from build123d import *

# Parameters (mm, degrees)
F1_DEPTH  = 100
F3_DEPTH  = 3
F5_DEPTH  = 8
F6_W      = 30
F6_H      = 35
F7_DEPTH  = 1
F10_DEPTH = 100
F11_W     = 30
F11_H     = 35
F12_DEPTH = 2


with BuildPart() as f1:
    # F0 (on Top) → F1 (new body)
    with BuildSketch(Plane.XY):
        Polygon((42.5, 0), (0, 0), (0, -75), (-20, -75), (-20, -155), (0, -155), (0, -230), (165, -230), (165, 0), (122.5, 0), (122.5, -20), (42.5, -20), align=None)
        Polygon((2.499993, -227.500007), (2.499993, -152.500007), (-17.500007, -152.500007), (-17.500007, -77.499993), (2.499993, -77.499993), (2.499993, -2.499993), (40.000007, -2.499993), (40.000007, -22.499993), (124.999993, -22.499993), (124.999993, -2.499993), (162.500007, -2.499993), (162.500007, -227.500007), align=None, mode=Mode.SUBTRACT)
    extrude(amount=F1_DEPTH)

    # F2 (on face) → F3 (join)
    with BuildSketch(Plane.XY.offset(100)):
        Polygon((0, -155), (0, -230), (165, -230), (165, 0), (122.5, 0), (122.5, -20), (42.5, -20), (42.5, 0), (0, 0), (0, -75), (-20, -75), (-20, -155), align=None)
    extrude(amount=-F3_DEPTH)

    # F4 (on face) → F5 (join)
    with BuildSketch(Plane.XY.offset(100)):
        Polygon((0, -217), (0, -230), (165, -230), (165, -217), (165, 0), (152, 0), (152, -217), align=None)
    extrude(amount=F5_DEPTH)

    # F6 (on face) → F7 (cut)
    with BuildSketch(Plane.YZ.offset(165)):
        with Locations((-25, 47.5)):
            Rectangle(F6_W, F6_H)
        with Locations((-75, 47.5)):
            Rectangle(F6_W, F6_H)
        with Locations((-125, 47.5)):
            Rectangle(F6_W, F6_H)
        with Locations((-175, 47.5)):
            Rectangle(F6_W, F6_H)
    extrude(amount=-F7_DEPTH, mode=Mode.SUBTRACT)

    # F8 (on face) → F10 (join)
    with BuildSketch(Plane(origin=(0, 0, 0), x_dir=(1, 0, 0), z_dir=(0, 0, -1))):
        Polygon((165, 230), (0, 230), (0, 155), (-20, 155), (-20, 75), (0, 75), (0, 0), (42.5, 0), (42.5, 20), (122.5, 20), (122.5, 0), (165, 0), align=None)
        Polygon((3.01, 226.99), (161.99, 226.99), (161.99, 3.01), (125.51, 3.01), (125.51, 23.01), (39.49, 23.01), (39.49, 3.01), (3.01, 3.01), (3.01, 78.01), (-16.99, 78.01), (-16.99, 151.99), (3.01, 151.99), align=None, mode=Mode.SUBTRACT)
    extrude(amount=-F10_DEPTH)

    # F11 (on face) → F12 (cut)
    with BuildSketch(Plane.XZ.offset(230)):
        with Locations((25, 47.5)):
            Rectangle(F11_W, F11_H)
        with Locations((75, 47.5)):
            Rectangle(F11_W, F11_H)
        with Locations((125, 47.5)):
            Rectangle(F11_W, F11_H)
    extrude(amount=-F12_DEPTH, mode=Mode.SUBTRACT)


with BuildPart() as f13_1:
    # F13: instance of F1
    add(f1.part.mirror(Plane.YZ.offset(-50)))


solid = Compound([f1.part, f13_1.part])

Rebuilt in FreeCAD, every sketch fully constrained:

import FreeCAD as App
import Part
import Sketcher
from FreeCAD import Vector
Q = App.Units.Quantity


def add_polygon(sketch, points):
    """Adds a closed chain of lines whose ends are joined by coincident constraints."""
    first, n = sketch.GeometryCount, len(points)
    for a, b in zip(points, points[1:] + points[:1]):
        sketch.addGeometry(Part.LineSegment(App.Vector(*a, 0), App.Vector(*b, 0)), False)
    for i in range(n):
        sketch.addConstraint(Sketcher.Constraint("Coincident", first + i, 2, first + (i + 1) % n, 1))

doc = App.newDocument("Part")
params = doc.addObject("Spreadsheet::Sheet", "Params")
for row, (alias, value) in enumerate([
    ("sketch1_width", "20 mm"),
    ("sketch1_width2", "165 mm"),
    ("sketch1_width3", "80 mm"),
    ("sketch1_height", "75 mm"),
    ("pad1_length", "100 mm"),
    ("sketch2_width", "165 mm"),
    ("sketch2_width2", "80 mm"),
    ("sketch2_width3", "20 mm"),
    ("sketch2_height", "75 mm"),
    ("pad2_length", "3 mm"),
    ("sketch3_width", "165 mm"),
    ("sketch3_width2", "13 mm"),
    ("sketch3_height", "230 mm"),
    ("pad3_length", "8 mm"),
    ("sketch4_width", "30 mm"),
    ("sketch4_height", "35 mm"),
    ("pocket1_length", "1 mm"),
    ("sketch5_width", "165 mm"),
    ("sketch5_width2", "20 mm"),
    ("sketch5_width3", "80 mm"),
    ("sketch5_height", "75 mm"),
    ("sketch5_width4", "158.98 mm"),
    ("pad4_length", "100 mm"),
    ("sketch6_width", "30 mm"),
    ("sketch6_height", "35 mm"),
    ("pocket2_length", "2 mm"),
], start=1):
    params.set(f"A{row}", alias)
    params.set(f"B{row}", "=" + value)
    params.setAlias(f"B{row}", alias)

body = doc.addObject("PartDesign::Body", "Body")

sketch1 = body.newObject("Sketcher::SketchObject", "Sketch")
sketch1.AttachmentSupport = (doc.getObject("XY_Plane"), [""])
sketch1.MapMode = "FlatFace"
add_polygon(sketch1, [(42, 0), (0, 0), (0, -75), (-20, -75), (-20, -155), (0, -155), (0, -230), (165, -230), (165, 0), (122, 0), (122, -20), (42, -20)])
add_polygon(sketch1, [(163, -228), (2, -228), (2, -153), (-18, -153), (-18, -77), (2, -77), (2, -2), (40, -2), (40, -22), (125, -22), (125, -2), (163, -2)])
sketch1.addConstraint(Sketcher.Constraint("Horizontal", 0))
sketch1.addConstraint(Sketcher.Constraint("Vertical", 1))
sketch1.addConstraint(Sketcher.Constraint("Horizontal", 2))
sketch1.addConstraint(Sketcher.Constraint("Vertical", 3))
sketch1.addConstraint(Sketcher.Constraint("Horizontal", 4))
sketch1.addConstraint(Sketcher.Constraint("Vertical", 5))
sketch1.addConstraint(Sketcher.Constraint("Horizontal", 6))
sketch1.addConstraint(Sketcher.Constraint("Vertical", 7))
sketch1.addConstraint(Sketcher.Constraint("Horizontal", 8))
sketch1.addConstraint(Sketcher.Constraint("Vertical", 9))
sketch1.addConstraint(Sketcher.Constraint("Horizontal", 10))
sketch1.addConstraint(Sketcher.Constraint("Vertical", 11))
sketch1.addConstraint(Sketcher.Constraint("Horizontal", 12))
sketch1.addConstraint(Sketcher.Constraint("Vertical", 13))
sketch1.addConstraint(Sketcher.Constraint("Horizontal", 14))
sketch1.addConstraint(Sketcher.Constraint("Vertical", 15))
sketch1.addConstraint(Sketcher.Constraint("Horizontal", 16))
sketch1.addConstraint(Sketcher.Constraint("Vertical", 17))
sketch1.addConstraint(Sketcher.Constraint("Horizontal", 18))
sketch1.addConstraint(Sketcher.Constraint("Vertical", 19))
sketch1.addConstraint(Sketcher.Constraint("Horizontal", 20))
sketch1.addConstraint(Sketcher.Constraint("Vertical", 21))
sketch1.addConstraint(Sketcher.Constraint("Horizontal", 22))
sketch1.addConstraint(Sketcher.Constraint("Vertical", 23))
sketch1.addConstraint(Sketcher.Constraint("Coincident", 0, 2, -1, 1))
sketch1.addConstraint(Sketcher.Constraint("PointOnObject", 4, 2, -2))
sketch1.addConstraint(Sketcher.Constraint("PointOnObject", 7, 2, -1))
sketch1.addConstraint(Sketcher.Constraint("Horizontal", 18, 2, 21, 2))
sketch1.addConstraint(Sketcher.Constraint("Vertical", 13, 2, 16, 2))
sketch1.addConstraint(Sketcher.Constraint("Equal", 0, 8))
sketch1.addConstraint(Sketcher.Constraint("Equal", 4, 14))
sketch1.addConstraint(Sketcher.Constraint("Equal", 18, 22))
sketch1.addConstraint(Sketcher.Constraint("Equal", 10, 3))
sketch1.addConstraint(Sketcher.Constraint("Equal", 1, 5))
sketch1.addConstraint(Sketcher.Constraint("Equal", 16, 9))
sketch1.addConstraint(Sketcher.Constraint("Equal", 5, 13))
sketch1.addConstraint(Sketcher.Constraint("Equal", 13, 17))
sketch1.addConstraint(Sketcher.Constraint("Equal", 11, 19))
sketch1.addConstraint(Sketcher.Constraint("DistanceX", 2, 2, 2, 1, Q("20 mm")))
sketch1.addConstraint(Sketcher.Constraint("DistanceX", 6, 1, 6, 2, Q("165 mm")))
sketch1.addConstraint(Sketcher.Constraint("DistanceX", 10, 2, 10, 1, Q("80 mm")))
sketch1.addConstraint(Sketcher.Constraint("DistanceY", 1, 2, 1, 1, Q("75 mm")))
sketch1.addConstraint(Sketcher.Constraint("DistanceX", 12, 2, 12, 1, Q("160.000014 mm")))
sketch1.addConstraint(Sketcher.Constraint("DistanceX", 18, 1, 18, 2, Q("37.500014 mm")))
sketch1.addConstraint(Sketcher.Constraint("DistanceY", 15, 1, 15, 2, Q("75.000014 mm")))
sketch1.addConstraint(Sketcher.Constraint("DistanceX", -1, 1, 12, 2, Q("2.499993 mm")))
sketch1.addConstraint(Sketcher.Constraint("DistanceY", 12, 2, -1, 1, Q("227.500007 mm")))
sketch1.setExpression("Constraints[62]", "Params.sketch1_width")
sketch1.setExpression("Constraints[63]", "Params.sketch1_width2")
sketch1.setExpression("Constraints[64]", "Params.sketch1_width3")
sketch1.setExpression("Constraints[65]", "Params.sketch1_height")
pad1 = body.newObject("PartDesign::Pad", "Pad")
pad1.Profile = sketch1
pad1.setExpression("Length", "Params.pad1_length")

sketch2 = body.newObject("Sketcher::SketchObject", "Sketch001")
sketch2.AttachmentSupport = (doc.getObject("XY_Plane"), [""])
sketch2.MapMode = "FlatFace"
sketch2.AttachmentOffset = App.Placement(Vector(0, 0, 100), App.Rotation())
add_polygon(sketch2, [(0, -155), (0, -230), (165, -230), (165, 0), (122, 0), (122, -20), (42, -20), (42, 0), (0, 0), (0, -75), (-20, -75), (-20, -155)])
sketch2.addConstraint(Sketcher.Constraint("Vertical", 0))
sketch2.addConstraint(Sketcher.Constraint("Horizontal", 1))
sketch2.addConstraint(Sketcher.Constraint("Vertical", 2))
sketch2.addConstraint(Sketcher.Constraint("Horizontal", 3))
sketch2.addConstraint(Sketcher.Constraint("Vertical", 4))
sketch2.addConstraint(Sketcher.Constraint("Horizontal", 5))
sketch2.addConstraint(Sketcher.Constraint("Vertical", 6))
sketch2.addConstraint(Sketcher.Constraint("Horizontal", 7))
sketch2.addConstraint(Sketcher.Constraint("Vertical", 8))
sketch2.addConstraint(Sketcher.Constraint("Horizontal", 9))
sketch2.addConstraint(Sketcher.Constraint("Vertical", 10))
sketch2.addConstraint(Sketcher.Constraint("Horizontal", 11))
sketch2.addConstraint(Sketcher.Constraint("Coincident", 7, 2, -1, 1))
sketch2.addConstraint(Sketcher.Constraint("PointOnObject", 0, 2, -2))
sketch2.addConstraint(Sketcher.Constraint("PointOnObject", 2, 2, -1))
sketch2.addConstraint(Sketcher.Constraint("Equal", 3, 7))
sketch2.addConstraint(Sketcher.Constraint("Equal", 11, 4))
sketch2.addConstraint(Sketcher.Constraint("Equal", 0, 8))
sketch2.addConstraint(Sketcher.Constraint("Equal", 5, 10))
sketch2.addConstraint(Sketcher.Constraint("DistanceX", 1, 1, 1, 2, Q("165 mm")))
sketch2.addConstraint(Sketcher.Constraint("DistanceX", 5, 2, 5, 1, Q("80 mm")))
sketch2.addConstraint(Sketcher.Constraint("DistanceX", 9, 2, 9, 1, Q("20 mm")))
sketch2.addConstraint(Sketcher.Constraint("DistanceY", 0, 2, 0, 1, Q("75 mm")))
sketch2.setExpression("Constraints[31]", "Params.sketch2_width")
sketch2.setExpression("Constraints[32]", "Params.sketch2_width2")
sketch2.setExpression("Constraints[33]", "Params.sketch2_width3")
sketch2.setExpression("Constraints[34]", "Params.sketch2_height")
pad2 = body.newObject("PartDesign::Pad", "Pad001")
pad2.Profile = sketch2
pad2.setExpression("Length", "Params.pad2_length")
pad2.Reversed = True

sketch3 = body.newObject("Sketcher::SketchObject", "Sketch002")
sketch3.AttachmentSupport = (doc.getObject("XY_Plane"), [""])
sketch3.MapMode = "FlatFace"
sketch3.AttachmentOffset = App.Placement(Vector(0, 0, 100), App.Rotation())
add_polygon(sketch3, [(0, -217), (0, -230), (165, -230), (165, 0), (152, 0), (152, -217)])
sketch3.addConstraint(Sketcher.Constraint("Vertical", 0))
sketch3.addConstraint(Sketcher.Constraint("Horizontal", 1))
sketch3.addConstraint(Sketcher.Constraint("Vertical", 2))
sketch3.addConstraint(Sketcher.Constraint("Horizontal", 3))
sketch3.addConstraint(Sketcher.Constraint("Vertical", 4))
sketch3.addConstraint(Sketcher.Constraint("Horizontal", 5))
sketch3.addConstraint(Sketcher.Constraint("PointOnObject", 0, 2, -2))
sketch3.addConstraint(Sketcher.Constraint("PointOnObject", 2, 2, -1))
sketch3.addConstraint(Sketcher.Constraint("Equal", 3, 0))
sketch3.addConstraint(Sketcher.Constraint("DistanceX", 1, 1, 1, 2, Q("165 mm")))
sketch3.addConstraint(Sketcher.Constraint("DistanceX", 3, 2, 3, 1, Q("13 mm")))
sketch3.addConstraint(Sketcher.Constraint("DistanceY", 2, 1, 2, 2, Q("230 mm")))
sketch3.setExpression("Constraints[15]", "Params.sketch3_width")
sketch3.setExpression("Constraints[16]", "Params.sketch3_width2")
sketch3.setExpression("Constraints[17]", "Params.sketch3_height")
pad3 = body.newObject("PartDesign::Pad", "Pad002")
pad3.Profile = sketch3
pad3.setExpression("Length", "Params.pad3_length")

sketch4 = body.newObject("Sketcher::SketchObject", "Sketch003")
sketch4.AttachmentSupport = (doc.getObject("YZ_Plane"), [""])
sketch4.MapMode = "FlatFace"
sketch4.AttachmentOffset = App.Placement(Vector(0, 0, 165), App.Rotation())
add_polygon(sketch4, [(-40, 65), (-40, 30), (-10, 30), (-10, 65)])
add_polygon(sketch4, [(-90, 65), (-90, 30), (-60, 30), (-60, 65)])
add_polygon(sketch4, [(-140, 65), (-140, 30), (-110, 30), (-110, 65)])
add_polygon(sketch4, [(-190, 65), (-190, 30), (-160, 30), (-160, 65)])
sketch4.addConstraint(Sketcher.Constraint("Vertical", 0))
sketch4.addConstraint(Sketcher.Constraint("Horizontal", 1))
sketch4.addConstraint(Sketcher.Constraint("Vertical", 2))
sketch4.addConstraint(Sketcher.Constraint("Horizontal", 3))
sketch4.addConstraint(Sketcher.Constraint("Vertical", 4))
sketch4.addConstraint(Sketcher.Constraint("Horizontal", 5))
sketch4.addConstraint(Sketcher.Constraint("Vertical", 6))
sketch4.addConstraint(Sketcher.Constraint("Horizontal", 7))
sketch4.addConstraint(Sketcher.Constraint("Vertical", 8))
sketch4.addConstraint(Sketcher.Constraint("Horizontal", 9))
sketch4.addConstraint(Sketcher.Constraint("Vertical", 10))
sketch4.addConstraint(Sketcher.Constraint("Horizontal", 11))
sketch4.addConstraint(Sketcher.Constraint("Vertical", 12))
sketch4.addConstraint(Sketcher.Constraint("Horizontal", 13))
sketch4.addConstraint(Sketcher.Constraint("Vertical", 14))
sketch4.addConstraint(Sketcher.Constraint("Horizontal", 15))
sketch4.addConstraint(Sketcher.Constraint("Horizontal", 1, 2, 4, 2))
sketch4.addConstraint(Sketcher.Constraint("Horizontal", 3, 2, 6, 2))
sketch4.addConstraint(Sketcher.Constraint("Horizontal", 5, 2, 8, 2))
sketch4.addConstraint(Sketcher.Constraint("Horizontal", 7, 2, 10, 2))
sketch4.addConstraint(Sketcher.Constraint("Horizontal", 9, 2, 12, 2))
sketch4.addConstraint(Sketcher.Constraint("Horizontal", 11, 2, 14, 2))
sketch4.addConstraint(Sketcher.Constraint("Equal", 3, 5))
sketch4.addConstraint(Sketcher.Constraint("Equal", 7, 9))
sketch4.addConstraint(Sketcher.Constraint("Equal", 11, 13))
sketch4.addConstraint(Sketcher.Constraint("DistanceX", 1, 1, 1, 2, Q("30 mm")))
sketch4.addConstraint(Sketcher.Constraint("DistanceY", 0, 2, 0, 1, Q("35 mm")))
sketch4.addConstraint(Sketcher.Constraint("DistanceX", 0, 2, -1, 1, Q("40 mm")))
sketch4.addConstraint(Sketcher.Constraint("DistanceY", -1, 1, 0, 2, Q("30 mm")))
sketch4.addConstraint(Sketcher.Constraint("DistanceX", 4, 2, -1, 1, Q("90 mm")))
sketch4.addConstraint(Sketcher.Constraint("DistanceX", 8, 2, -1, 1, Q("140 mm")))
sketch4.addConstraint(Sketcher.Constraint("DistanceX", 12, 2, -1, 1, Q("190 mm")))
sketch4.setExpression("Constraints[41]", "Params.sketch4_width")
sketch4.setExpression("Constraints[42]", "Params.sketch4_height")
pocket1 = body.newObject("PartDesign::Pocket", "Pocket")
pocket1.Profile = sketch4
pocket1.setExpression("Length", "Params.pocket1_length")

sketch5 = body.newObject("Sketcher::SketchObject", "Sketch004")
sketch5.AttachmentSupport = (doc.getObject("XY_Plane"), [""])
sketch5.MapMode = "FlatFace"
add_polygon(sketch5, [(165, -230), (0, -230), (0, -155), (-20, -155), (-20, -75), (0, -75), (0, 0), (42, 0), (42, -20), (122, -20), (122, 0), (165, 0)])
add_polygon(sketch5, [(3, -152), (3, -227), (162, -227), (162, -3), (126, -3), (126, -23), (39, -23), (39, -3), (3, -3), (3, -78), (-17, -78), (-17, -152)])
sketch5.addConstraint(Sketcher.Constraint("Horizontal", 0))
sketch5.addConstraint(Sketcher.Constraint("Vertical", 1))
sketch5.addConstraint(Sketcher.Constraint("Horizontal", 2))
sketch5.addConstraint(Sketcher.Constraint("Vertical", 3))
sketch5.addConstraint(Sketcher.Constraint("Horizontal", 4))
sketch5.addConstraint(Sketcher.Constraint("Vertical", 5))
sketch5.addConstraint(Sketcher.Constraint("Horizontal", 6))
sketch5.addConstraint(Sketcher.Constraint("Vertical", 7))
sketch5.addConstraint(Sketcher.Constraint("Horizontal", 8))
sketch5.addConstraint(Sketcher.Constraint("Vertical", 9))
sketch5.addConstraint(Sketcher.Constraint("Horizontal", 10))
sketch5.addConstraint(Sketcher.Constraint("Vertical", 11))
sketch5.addConstraint(Sketcher.Constraint("Vertical", 12))
sketch5.addConstraint(Sketcher.Constraint("Horizontal", 13))
sketch5.addConstraint(Sketcher.Constraint("Vertical", 14))
sketch5.addConstraint(Sketcher.Constraint("Horizontal", 15))
sketch5.addConstraint(Sketcher.Constraint("Vertical", 16))
sketch5.addConstraint(Sketcher.Constraint("Horizontal", 17))
sketch5.addConstraint(Sketcher.Constraint("Vertical", 18))
sketch5.addConstraint(Sketcher.Constraint("Horizontal", 19))
sketch5.addConstraint(Sketcher.Constraint("Vertical", 20))
sketch5.addConstraint(Sketcher.Constraint("Horizontal", 21))
sketch5.addConstraint(Sketcher.Constraint("Vertical", 22))
sketch5.addConstraint(Sketcher.Constraint("Horizontal", 23))
sketch5.addConstraint(Sketcher.Constraint("Coincident", 5, 2, -1, 1))
sketch5.addConstraint(Sketcher.Constraint("PointOnObject", 0, 2, -2))
sketch5.addConstraint(Sketcher.Constraint("PointOnObject", 9, 2, -1))
sketch5.addConstraint(Sketcher.Constraint("Horizontal", 15, 2, 18, 2))
sketch5.addConstraint(Sketcher.Constraint("Vertical", 12, 2, 19, 2))
sketch5.addConstraint(Sketcher.Constraint("Equal", 6, 10))
sketch5.addConstraint(Sketcher.Constraint("Equal", 15, 19))
sketch5.addConstraint(Sketcher.Constraint("Equal", 4, 21))
sketch5.addConstraint(Sketcher.Constraint("Equal", 8, 3))
sketch5.addConstraint(Sketcher.Constraint("Equal", 1, 5))
sketch5.addConstraint(Sketcher.Constraint("Equal", 23, 7))
sketch5.addConstraint(Sketcher.Constraint("Equal", 5, 12))
sketch5.addConstraint(Sketcher.Constraint("Equal", 9, 16))
sketch5.addConstraint(Sketcher.Constraint("Equal", 12, 20))
sketch5.addConstraint(Sketcher.Constraint("DistanceX", 0, 2, 0, 1, Q("165 mm")))
sketch5.addConstraint(Sketcher.Constraint("DistanceX", 2, 2, 2, 1, Q("20 mm")))
sketch5.addConstraint(Sketcher.Constraint("DistanceX", 8, 1, 8, 2, Q("80 mm")))
sketch5.addConstraint(Sketcher.Constraint("DistanceY", 1, 1, 1, 2, Q("75 mm")))
sketch5.addConstraint(Sketcher.Constraint("DistanceX", 13, 1, 13, 2, Q("158.98 mm")))
sketch5.addConstraint(Sketcher.Constraint("DistanceX", 15, 2, 15, 1, Q("36.48 mm")))
sketch5.addConstraint(Sketcher.Constraint("DistanceY", 14, 1, 14, 2, Q("223.98 mm")))
sketch5.addConstraint(Sketcher.Constraint("DistanceX", -1, 1, 12, 2, Q("3.01 mm")))
sketch5.addConstraint(Sketcher.Constraint("DistanceY", 12, 2, -1, 1, Q("226.99 mm")))
sketch5.setExpression("Constraints[62]", "Params.sketch5_width")
sketch5.setExpression("Constraints[63]", "Params.sketch5_width2")
sketch5.setExpression("Constraints[64]", "Params.sketch5_width3")
sketch5.setExpression("Constraints[65]", "Params.sketch5_height")
sketch5.setExpression("Constraints[66]", "Params.sketch5_width4")
pad4 = body.newObject("PartDesign::Pad", "Pad003")
pad4.Profile = sketch5
pad4.setExpression("Length", "Params.pad4_length")

sketch6 = body.newObject("Sketcher::SketchObject", "Sketch005")
sketch6.AttachmentSupport = (doc.getObject("XZ_Plane"), [""])
sketch6.MapMode = "FlatFace"
sketch6.AttachmentOffset = App.Placement(Vector(0, 0, 230), App.Rotation())
add_polygon(sketch6, [(10, 65), (10, 30), (40, 30), (40, 65)])
add_polygon(sketch6, [(60, 65), (60, 30), (90, 30), (90, 65)])
add_polygon(sketch6, [(110, 65), (110, 30), (140, 30), (140, 65)])
sketch6.addConstraint(Sketcher.Constraint("Vertical", 0))
sketch6.addConstraint(Sketcher.Constraint("Horizontal", 1))
sketch6.addConstraint(Sketcher.Constraint("Vertical", 2))
sketch6.addConstraint(Sketcher.Constraint("Horizontal", 3))
sketch6.addConstraint(Sketcher.Constraint("Vertical", 4))
sketch6.addConstraint(Sketcher.Constraint("Horizontal", 5))
sketch6.addConstraint(Sketcher.Constraint("Vertical", 6))
sketch6.addConstraint(Sketcher.Constraint("Horizontal", 7))
sketch6.addConstraint(Sketcher.Constraint("Vertical", 8))
sketch6.addConstraint(Sketcher.Constraint("Horizontal", 9))
sketch6.addConstraint(Sketcher.Constraint("Vertical", 10))
sketch6.addConstraint(Sketcher.Constraint("Horizontal", 11))
sketch6.addConstraint(Sketcher.Constraint("Horizontal", 1, 2, 4, 2))
sketch6.addConstraint(Sketcher.Constraint("Horizontal", 3, 2, 6, 2))
sketch6.addConstraint(Sketcher.Constraint("Horizontal", 5, 2, 8, 2))
sketch6.addConstraint(Sketcher.Constraint("Horizontal", 7, 2, 10, 2))
sketch6.addConstraint(Sketcher.Constraint("Equal", 3, 5))
sketch6.addConstraint(Sketcher.Constraint("Equal", 7, 9))
sketch6.addConstraint(Sketcher.Constraint("DistanceX", 1, 1, 1, 2, Q("30 mm")))
sketch6.addConstraint(Sketcher.Constraint("DistanceY", 0, 2, 0, 1, Q("35 mm")))
sketch6.addConstraint(Sketcher.Constraint("DistanceX", -1, 1, 0, 2, Q("10 mm")))
sketch6.addConstraint(Sketcher.Constraint("DistanceY", -1, 1, 0, 2, Q("30 mm")))
sketch6.addConstraint(Sketcher.Constraint("DistanceX", -1, 1, 4, 2, Q("60 mm")))
sketch6.addConstraint(Sketcher.Constraint("DistanceX", -1, 1, 8, 2, Q("110 mm")))
sketch6.setExpression("Constraints[30]", "Params.sketch6_width")
sketch6.setExpression("Constraints[31]", "Params.sketch6_height")
pocket2 = body.newObject("PartDesign::Pocket", "Pocket001")
pocket2.Profile = sketch6
pocket2.setExpression("Length", "Params.pocket2_length")
body2 = doc.addObject("PartDesign::Body", "Body001")
doc.recompute()

mirroring = doc.addObject("Part::Mirroring", "Mirroring")
mirroring.Source = body
mirroring.Base = Vector(-50, 0, 0)
mirroring.Normal = Vector(1, 0, 0)
body2.BaseFeature = mirroring
doc.recompute()
mirroring.Visibility = False

doc.recompute()
